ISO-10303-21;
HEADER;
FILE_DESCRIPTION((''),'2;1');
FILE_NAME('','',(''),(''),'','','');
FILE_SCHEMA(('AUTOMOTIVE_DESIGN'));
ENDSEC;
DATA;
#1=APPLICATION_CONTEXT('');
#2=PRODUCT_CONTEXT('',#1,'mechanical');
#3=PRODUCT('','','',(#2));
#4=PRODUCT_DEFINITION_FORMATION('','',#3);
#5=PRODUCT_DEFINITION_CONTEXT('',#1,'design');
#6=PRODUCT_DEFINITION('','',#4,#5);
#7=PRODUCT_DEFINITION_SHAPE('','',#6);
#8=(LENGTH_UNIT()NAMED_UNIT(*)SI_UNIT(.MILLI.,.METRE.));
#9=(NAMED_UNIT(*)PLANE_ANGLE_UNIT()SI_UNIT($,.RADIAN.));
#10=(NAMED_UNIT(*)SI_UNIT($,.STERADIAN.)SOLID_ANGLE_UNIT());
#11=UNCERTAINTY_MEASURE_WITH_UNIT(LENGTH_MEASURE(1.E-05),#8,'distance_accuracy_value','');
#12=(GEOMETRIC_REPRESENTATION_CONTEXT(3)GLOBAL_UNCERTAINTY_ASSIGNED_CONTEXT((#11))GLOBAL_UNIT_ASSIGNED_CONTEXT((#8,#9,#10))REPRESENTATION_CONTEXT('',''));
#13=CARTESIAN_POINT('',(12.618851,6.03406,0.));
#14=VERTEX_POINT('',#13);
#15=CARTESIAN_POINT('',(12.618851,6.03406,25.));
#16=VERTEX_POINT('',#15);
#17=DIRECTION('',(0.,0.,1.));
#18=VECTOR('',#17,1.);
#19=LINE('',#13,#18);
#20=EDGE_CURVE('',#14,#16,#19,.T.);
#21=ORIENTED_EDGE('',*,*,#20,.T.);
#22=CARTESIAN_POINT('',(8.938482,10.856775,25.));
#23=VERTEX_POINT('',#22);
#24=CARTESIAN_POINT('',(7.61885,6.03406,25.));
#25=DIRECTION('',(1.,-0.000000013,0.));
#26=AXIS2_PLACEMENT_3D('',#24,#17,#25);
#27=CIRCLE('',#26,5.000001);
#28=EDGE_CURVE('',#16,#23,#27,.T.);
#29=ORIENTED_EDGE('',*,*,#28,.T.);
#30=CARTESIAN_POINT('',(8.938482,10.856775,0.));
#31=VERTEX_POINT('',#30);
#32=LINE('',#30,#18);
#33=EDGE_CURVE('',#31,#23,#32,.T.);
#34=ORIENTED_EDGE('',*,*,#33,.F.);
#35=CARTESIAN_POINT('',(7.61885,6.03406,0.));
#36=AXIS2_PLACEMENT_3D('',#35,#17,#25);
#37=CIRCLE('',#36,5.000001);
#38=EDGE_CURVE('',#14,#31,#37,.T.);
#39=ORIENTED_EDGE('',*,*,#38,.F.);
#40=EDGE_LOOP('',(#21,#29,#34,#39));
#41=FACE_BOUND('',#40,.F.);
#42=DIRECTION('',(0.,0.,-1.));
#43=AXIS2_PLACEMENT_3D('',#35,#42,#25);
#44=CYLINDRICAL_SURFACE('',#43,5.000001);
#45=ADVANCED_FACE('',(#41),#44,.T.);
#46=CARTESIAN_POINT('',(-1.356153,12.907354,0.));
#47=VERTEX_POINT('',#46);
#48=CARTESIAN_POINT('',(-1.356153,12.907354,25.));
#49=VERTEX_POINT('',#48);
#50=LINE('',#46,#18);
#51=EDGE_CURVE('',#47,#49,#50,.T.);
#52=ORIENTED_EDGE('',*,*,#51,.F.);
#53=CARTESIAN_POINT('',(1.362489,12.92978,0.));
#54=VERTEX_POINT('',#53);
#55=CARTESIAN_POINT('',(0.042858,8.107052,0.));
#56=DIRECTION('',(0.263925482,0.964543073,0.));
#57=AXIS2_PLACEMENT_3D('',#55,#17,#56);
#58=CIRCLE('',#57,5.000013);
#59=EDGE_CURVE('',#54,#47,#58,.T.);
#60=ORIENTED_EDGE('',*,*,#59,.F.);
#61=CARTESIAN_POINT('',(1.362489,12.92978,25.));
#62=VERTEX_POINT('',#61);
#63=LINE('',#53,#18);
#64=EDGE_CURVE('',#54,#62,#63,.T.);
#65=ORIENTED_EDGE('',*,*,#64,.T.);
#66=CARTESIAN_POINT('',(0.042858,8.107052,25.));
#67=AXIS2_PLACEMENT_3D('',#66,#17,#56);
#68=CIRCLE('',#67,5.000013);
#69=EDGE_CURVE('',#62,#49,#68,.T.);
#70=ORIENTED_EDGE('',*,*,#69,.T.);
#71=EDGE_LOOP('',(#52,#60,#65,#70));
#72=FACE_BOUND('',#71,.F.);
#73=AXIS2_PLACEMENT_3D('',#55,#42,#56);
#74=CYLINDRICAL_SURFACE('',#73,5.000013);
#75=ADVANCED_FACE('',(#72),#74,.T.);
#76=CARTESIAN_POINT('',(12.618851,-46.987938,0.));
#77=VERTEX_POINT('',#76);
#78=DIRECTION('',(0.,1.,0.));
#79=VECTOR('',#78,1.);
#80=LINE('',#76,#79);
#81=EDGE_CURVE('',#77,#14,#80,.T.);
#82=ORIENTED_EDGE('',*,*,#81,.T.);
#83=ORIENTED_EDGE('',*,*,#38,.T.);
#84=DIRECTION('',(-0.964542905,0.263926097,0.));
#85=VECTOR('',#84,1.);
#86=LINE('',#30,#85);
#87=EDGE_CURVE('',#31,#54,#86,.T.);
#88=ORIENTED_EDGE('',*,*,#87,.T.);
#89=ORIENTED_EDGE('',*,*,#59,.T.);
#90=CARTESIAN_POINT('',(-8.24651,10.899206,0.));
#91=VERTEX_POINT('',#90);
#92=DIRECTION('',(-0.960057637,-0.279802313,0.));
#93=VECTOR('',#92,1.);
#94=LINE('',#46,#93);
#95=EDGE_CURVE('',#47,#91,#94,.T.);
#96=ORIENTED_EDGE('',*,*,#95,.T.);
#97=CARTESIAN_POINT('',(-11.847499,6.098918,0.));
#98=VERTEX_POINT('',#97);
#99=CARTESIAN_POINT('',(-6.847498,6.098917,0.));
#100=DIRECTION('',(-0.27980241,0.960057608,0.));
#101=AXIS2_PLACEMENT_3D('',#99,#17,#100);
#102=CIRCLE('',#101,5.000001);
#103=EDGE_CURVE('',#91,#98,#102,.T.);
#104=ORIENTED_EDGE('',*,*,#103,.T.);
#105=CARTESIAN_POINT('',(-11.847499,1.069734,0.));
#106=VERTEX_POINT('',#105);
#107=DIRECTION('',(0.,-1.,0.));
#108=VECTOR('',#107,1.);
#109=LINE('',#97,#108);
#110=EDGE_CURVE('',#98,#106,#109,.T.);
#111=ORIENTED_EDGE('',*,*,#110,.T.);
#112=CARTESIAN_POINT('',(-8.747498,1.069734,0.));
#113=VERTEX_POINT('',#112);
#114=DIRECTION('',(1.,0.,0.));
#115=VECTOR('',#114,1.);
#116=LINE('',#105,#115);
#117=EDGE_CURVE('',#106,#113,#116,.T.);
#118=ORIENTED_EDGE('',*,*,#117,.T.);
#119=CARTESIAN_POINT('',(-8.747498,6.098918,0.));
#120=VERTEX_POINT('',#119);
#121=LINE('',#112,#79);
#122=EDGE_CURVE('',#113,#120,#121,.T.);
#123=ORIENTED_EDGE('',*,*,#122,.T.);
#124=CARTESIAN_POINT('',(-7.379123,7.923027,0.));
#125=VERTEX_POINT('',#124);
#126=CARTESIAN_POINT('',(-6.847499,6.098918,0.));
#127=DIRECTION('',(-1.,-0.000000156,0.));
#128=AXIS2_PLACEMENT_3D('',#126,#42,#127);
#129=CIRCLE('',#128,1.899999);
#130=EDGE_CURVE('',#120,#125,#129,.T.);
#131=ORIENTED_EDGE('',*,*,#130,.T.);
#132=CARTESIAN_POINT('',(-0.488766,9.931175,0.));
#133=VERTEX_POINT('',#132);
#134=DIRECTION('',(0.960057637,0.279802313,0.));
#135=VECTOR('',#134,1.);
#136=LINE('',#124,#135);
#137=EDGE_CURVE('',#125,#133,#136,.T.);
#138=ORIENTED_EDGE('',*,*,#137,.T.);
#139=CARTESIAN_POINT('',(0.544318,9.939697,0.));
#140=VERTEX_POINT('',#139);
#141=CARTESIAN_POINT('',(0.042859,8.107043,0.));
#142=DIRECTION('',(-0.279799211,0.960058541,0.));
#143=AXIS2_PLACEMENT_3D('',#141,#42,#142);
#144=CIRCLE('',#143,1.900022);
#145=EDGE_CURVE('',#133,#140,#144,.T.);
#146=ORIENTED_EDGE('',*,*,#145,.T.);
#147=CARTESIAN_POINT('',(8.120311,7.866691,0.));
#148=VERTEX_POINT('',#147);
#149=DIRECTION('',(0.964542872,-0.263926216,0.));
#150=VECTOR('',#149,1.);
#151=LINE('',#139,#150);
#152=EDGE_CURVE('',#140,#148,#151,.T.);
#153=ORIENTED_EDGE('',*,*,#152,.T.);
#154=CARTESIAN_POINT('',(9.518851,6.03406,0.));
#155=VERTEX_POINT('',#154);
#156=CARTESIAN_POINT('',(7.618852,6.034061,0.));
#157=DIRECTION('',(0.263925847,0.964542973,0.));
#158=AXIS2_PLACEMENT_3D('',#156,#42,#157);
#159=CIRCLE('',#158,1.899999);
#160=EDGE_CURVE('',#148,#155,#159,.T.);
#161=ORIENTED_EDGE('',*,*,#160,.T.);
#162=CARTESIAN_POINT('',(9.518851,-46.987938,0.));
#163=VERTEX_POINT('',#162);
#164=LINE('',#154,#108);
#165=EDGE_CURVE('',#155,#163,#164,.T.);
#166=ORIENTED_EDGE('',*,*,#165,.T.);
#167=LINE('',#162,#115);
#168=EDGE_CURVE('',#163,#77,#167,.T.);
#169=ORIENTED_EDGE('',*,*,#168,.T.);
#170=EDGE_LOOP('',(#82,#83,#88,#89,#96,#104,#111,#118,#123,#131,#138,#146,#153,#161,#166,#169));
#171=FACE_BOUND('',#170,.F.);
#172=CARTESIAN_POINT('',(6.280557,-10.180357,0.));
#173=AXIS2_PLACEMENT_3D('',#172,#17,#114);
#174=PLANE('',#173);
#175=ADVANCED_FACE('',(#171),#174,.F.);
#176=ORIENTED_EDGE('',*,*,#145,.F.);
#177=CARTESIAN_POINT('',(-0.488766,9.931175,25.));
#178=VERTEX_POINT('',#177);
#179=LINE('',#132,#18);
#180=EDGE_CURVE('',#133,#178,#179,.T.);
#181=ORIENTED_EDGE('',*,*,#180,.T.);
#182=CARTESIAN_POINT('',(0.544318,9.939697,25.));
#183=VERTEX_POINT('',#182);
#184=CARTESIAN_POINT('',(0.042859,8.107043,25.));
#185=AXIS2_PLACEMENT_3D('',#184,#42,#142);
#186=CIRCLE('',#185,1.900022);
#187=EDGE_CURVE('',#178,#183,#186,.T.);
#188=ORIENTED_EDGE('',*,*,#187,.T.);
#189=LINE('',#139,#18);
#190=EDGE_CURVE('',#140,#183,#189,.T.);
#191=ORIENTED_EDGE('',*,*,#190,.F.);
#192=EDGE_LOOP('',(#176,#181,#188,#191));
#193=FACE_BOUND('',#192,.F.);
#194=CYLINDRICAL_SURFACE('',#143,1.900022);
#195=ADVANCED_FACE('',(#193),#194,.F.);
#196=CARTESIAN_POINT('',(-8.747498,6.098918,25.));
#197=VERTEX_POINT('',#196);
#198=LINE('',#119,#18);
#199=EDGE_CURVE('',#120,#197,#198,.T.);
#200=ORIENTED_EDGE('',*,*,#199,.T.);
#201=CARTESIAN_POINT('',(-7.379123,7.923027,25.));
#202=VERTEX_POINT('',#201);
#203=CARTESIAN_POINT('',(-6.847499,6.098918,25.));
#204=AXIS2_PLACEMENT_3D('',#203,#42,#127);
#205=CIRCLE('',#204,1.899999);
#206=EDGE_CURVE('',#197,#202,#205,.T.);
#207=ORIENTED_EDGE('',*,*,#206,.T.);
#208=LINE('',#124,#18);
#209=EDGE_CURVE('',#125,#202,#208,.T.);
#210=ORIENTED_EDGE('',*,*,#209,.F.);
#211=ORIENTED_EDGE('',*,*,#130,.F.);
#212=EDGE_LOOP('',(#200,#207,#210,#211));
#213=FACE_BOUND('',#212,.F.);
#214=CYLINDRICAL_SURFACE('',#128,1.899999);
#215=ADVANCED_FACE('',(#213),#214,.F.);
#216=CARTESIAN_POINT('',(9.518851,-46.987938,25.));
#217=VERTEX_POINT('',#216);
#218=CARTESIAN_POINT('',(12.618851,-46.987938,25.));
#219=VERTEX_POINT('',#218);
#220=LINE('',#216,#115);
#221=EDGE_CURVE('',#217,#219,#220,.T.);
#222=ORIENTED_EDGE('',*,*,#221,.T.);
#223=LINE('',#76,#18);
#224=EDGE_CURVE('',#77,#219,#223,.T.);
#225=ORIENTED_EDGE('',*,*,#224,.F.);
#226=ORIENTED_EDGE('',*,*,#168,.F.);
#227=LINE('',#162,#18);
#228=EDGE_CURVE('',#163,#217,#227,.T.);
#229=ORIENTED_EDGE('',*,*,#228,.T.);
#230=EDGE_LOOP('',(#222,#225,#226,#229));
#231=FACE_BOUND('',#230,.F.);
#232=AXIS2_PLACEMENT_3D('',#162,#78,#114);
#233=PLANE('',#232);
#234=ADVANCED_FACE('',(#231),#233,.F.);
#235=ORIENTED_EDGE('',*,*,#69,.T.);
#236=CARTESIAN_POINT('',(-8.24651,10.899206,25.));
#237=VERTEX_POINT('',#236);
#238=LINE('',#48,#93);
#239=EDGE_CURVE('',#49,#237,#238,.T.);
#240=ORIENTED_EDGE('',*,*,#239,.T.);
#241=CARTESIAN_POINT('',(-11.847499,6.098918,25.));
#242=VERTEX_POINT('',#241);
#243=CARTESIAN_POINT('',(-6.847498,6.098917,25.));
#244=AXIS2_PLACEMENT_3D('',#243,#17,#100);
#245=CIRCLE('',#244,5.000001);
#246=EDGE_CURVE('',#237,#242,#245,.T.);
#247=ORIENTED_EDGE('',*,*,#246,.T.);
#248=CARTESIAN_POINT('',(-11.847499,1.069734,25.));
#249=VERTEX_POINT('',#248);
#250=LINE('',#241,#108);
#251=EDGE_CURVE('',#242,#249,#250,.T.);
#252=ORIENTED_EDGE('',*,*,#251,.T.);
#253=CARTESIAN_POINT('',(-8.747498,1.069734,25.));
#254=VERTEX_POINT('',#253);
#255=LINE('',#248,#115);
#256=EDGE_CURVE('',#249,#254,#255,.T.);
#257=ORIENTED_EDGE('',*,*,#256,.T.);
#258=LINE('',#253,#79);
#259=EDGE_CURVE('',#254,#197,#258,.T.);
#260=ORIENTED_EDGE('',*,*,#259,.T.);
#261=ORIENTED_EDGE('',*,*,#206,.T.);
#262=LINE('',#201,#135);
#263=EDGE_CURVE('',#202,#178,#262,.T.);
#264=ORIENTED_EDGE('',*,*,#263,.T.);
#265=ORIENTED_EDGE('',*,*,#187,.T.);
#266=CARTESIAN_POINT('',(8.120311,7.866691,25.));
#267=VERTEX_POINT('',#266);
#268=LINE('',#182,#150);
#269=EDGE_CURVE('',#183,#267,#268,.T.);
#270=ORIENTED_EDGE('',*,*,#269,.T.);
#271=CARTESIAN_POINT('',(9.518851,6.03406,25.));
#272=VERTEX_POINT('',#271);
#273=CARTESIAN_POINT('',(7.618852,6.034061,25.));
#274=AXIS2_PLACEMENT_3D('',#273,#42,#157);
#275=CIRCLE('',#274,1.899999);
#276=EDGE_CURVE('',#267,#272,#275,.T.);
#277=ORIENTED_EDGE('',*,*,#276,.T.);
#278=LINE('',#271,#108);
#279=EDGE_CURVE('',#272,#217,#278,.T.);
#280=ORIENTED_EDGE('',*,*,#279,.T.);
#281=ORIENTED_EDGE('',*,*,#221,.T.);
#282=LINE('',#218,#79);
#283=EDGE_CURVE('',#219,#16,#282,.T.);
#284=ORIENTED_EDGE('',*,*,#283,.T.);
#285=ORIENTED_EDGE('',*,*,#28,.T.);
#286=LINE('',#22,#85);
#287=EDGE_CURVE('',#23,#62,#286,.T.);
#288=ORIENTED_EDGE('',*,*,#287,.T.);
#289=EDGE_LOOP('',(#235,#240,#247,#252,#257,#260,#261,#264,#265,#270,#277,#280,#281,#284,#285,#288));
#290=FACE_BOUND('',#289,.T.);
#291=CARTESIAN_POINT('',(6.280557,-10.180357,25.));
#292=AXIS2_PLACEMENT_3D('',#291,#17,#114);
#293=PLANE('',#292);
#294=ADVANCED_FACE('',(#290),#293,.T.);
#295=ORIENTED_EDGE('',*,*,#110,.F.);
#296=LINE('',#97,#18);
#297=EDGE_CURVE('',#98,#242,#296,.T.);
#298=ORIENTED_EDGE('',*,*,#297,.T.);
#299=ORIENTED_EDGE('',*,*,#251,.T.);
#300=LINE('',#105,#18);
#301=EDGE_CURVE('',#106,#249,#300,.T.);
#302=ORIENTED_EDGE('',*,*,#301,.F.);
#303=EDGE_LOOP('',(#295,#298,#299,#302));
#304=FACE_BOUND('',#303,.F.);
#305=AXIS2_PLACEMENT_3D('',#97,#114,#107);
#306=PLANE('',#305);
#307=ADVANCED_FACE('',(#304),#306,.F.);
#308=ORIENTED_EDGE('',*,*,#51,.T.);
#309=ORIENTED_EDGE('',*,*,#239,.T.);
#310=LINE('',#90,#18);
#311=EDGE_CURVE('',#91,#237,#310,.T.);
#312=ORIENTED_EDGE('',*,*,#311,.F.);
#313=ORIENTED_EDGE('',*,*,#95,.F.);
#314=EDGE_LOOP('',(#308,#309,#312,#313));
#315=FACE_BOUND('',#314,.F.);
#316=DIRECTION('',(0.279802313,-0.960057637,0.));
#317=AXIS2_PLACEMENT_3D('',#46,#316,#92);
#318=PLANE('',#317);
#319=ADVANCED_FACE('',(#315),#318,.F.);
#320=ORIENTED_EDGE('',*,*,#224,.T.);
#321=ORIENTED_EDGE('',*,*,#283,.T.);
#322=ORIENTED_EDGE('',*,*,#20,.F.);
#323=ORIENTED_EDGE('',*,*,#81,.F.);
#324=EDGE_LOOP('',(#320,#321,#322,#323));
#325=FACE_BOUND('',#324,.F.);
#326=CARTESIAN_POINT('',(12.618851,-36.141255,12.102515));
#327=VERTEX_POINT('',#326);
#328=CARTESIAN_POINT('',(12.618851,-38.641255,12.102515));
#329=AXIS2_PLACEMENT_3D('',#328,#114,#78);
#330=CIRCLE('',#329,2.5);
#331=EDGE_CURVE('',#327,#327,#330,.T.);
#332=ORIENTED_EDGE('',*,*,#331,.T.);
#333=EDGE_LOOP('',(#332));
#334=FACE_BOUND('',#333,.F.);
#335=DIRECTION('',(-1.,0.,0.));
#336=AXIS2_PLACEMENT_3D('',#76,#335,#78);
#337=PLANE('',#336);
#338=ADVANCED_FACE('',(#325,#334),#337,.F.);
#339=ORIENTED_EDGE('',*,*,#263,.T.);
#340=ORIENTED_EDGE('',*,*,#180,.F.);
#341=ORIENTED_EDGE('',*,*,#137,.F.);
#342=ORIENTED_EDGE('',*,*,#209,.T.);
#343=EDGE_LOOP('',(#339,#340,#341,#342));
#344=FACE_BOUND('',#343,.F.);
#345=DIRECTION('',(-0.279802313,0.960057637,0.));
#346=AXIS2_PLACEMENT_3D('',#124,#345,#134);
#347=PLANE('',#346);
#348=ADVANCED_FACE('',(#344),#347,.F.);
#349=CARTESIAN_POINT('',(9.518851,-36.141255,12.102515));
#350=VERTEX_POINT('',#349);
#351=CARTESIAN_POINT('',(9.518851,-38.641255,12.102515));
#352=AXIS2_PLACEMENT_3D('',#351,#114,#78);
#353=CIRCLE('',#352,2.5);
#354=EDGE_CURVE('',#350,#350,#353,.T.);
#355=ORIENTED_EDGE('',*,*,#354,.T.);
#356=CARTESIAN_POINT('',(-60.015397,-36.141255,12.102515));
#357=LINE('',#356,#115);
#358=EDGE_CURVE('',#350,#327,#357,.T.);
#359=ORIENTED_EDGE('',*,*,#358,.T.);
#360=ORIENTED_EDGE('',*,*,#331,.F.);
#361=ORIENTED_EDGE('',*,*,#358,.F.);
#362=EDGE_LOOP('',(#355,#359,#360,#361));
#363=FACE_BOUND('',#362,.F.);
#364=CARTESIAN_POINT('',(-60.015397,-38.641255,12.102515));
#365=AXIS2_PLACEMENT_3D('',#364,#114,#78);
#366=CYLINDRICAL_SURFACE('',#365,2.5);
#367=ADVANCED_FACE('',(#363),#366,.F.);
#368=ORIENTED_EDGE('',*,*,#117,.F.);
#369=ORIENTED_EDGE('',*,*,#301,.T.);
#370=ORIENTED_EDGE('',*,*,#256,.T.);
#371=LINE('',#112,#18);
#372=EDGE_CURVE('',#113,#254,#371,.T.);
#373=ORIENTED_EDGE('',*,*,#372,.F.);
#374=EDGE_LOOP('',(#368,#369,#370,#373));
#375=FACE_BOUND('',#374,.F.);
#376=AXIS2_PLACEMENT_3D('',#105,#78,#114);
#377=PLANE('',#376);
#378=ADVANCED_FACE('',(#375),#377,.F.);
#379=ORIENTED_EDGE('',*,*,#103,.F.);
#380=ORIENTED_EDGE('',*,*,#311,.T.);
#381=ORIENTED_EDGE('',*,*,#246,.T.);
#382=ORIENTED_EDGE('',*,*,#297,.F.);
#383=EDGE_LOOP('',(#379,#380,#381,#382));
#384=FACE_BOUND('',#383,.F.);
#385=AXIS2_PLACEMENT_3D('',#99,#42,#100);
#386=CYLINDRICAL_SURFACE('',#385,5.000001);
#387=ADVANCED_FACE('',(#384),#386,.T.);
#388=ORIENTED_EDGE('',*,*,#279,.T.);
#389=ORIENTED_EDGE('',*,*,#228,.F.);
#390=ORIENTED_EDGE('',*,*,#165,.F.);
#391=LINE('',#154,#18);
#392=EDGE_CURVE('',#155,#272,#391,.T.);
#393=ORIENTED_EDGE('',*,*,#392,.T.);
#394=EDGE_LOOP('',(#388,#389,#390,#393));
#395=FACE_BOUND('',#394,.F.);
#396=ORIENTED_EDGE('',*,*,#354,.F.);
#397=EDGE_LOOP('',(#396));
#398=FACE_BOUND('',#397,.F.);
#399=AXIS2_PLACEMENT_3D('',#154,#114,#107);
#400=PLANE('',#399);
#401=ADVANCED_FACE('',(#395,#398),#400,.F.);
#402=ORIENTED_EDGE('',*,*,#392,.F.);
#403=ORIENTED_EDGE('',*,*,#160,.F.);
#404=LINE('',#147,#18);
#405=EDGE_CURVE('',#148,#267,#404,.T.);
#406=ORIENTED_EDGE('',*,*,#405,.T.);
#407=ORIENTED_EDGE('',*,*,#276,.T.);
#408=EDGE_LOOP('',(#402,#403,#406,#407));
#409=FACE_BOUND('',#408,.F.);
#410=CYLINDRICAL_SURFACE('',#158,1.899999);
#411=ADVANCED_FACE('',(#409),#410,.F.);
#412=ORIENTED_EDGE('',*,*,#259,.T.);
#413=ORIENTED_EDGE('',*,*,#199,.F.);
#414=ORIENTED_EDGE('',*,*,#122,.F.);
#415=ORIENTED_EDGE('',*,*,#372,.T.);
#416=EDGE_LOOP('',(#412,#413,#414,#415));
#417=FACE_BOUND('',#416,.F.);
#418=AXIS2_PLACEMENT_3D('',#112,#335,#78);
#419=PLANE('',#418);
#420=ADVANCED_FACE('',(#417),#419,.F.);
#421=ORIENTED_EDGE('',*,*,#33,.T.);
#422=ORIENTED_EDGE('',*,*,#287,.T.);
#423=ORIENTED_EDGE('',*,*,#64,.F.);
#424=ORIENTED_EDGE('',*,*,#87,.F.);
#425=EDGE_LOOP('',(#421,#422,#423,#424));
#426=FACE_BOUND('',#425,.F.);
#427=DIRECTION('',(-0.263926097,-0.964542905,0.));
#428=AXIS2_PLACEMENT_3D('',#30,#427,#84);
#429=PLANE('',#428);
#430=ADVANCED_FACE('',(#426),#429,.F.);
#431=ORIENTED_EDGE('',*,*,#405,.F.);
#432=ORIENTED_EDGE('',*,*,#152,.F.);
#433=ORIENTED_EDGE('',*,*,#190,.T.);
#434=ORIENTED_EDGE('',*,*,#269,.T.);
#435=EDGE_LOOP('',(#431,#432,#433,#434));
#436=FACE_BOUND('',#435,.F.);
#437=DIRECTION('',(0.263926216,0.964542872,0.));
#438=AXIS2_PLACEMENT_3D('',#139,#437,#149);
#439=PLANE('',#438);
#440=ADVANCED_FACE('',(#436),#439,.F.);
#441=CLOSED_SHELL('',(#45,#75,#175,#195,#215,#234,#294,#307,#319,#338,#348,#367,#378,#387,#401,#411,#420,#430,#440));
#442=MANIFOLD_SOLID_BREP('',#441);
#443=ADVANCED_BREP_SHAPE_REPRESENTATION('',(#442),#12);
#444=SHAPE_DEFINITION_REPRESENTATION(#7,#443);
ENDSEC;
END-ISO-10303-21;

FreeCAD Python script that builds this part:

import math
import FreeCAD as App
import Part
import Sketcher
from FreeCAD import Vector

doc = App.newDocument("Part")
body = doc.addObject("PartDesign::Body", "Body")

# Sketch on XY plane
sketch1 = body.newObject("Sketcher::SketchObject", "Sketch")
sketch1.AttachmentSupport = (doc.getObject("XY_Plane"), [""])
sketch1.MapMode = "FlatFace"
sketch1.addGeometry([
    Part.LineSegment(Vector(-11.847499, 6.098918, 0), Vector(-11.847499, 1.069734, 0)),  # 0
    Part.LineSegment(Vector(-11.847499, 1.069734, 0), Vector(-8.747498, 1.069734, 0)),  # 1
    Part.LineSegment(Vector(-8.747498, 1.069734, 0), Vector(-8.747498, 6.098918, 0)),  # 2
    Part.ArcOfCircle(Part.Circle(Vector(-6.847499, 6.098918, 0), Vector(0, 0, 1), 1.899999), math.radians(106.248407), math.radians(180.000009)),  # 3
    Part.LineSegment(Vector(-7.379123, 7.923027, 0), Vector(-0.488766, 9.931175, 0)),  # 4
    Part.ArcOfCircle(Part.Circle(Vector(0.042859, 8.107043, 0), Vector(0, 0, 1), 1.900022), math.radians(74.697033), math.radians(106.248221)),  # 5
    Part.LineSegment(Vector(0.544318, 9.939697, 0), Vector(8.120311, 7.866691, 0)),  # 6
    Part.ArcOfCircle(Part.Circle(Vector(7.618852, 6.034061, 0), Vector(0, 0, 1), 1.899999), math.radians(-0.000016), math.radians(74.696864)),  # 7
    Part.LineSegment(Vector(9.518851, 6.03406, 0), Vector(9.518851, -46.987938, 0)),  # 8
    Part.LineSegment(Vector(9.518851, -46.987938, 0), Vector(12.618851, -46.987938, 0)),  # 9
    Part.LineSegment(Vector(12.618851, -46.987938, 0), Vector(12.618851, 6.03406, 0)),  # 10
    Part.ArcOfCircle(Part.Circle(Vector(7.61885, 6.03406, 0), Vector(0, 0, 1), 5.000001), math.radians(-0.000001), math.radians(74.696836)),  # 11
    Part.LineSegment(Vector(8.938482, 10.856775, 0), Vector(1.362489, 12.92978, 0)),  # 12
    Part.ArcOfCircle(Part.Circle(Vector(0.042858, 8.107052, 0), Vector(0, 0, 1), 5.000013), math.radians(74.696885), math.radians(106.248356)),  # 13
    Part.LineSegment(Vector(-1.356153, 12.907354, 0), Vector(-8.24651, 10.899206, 0)),  # 14
    Part.ArcOfCircle(Part.Circle(Vector(-6.847498, 6.098917, 0), Vector(0, 0, 1), 5.000001), math.radians(106.248412), math.radians(179.999983)),  # 15
], False)
sketch1.addConstraint([
    Sketcher.Constraint("Coincident", 0, 2, 1, 1),
    Sketcher.Constraint("Coincident", 1, 2, 2, 1),
    Sketcher.Constraint("Coincident", 2, 2, 3, 2),
    Sketcher.Constraint("Coincident", 3, 1, 4, 1),
    Sketcher.Constraint("Coincident", 4, 2, 5, 2),
    Sketcher.Constraint("Coincident", 5, 1, 6, 1),
    Sketcher.Constraint("Coincident", 6, 2, 7, 2),
    Sketcher.Constraint("Coincident", 7, 1, 8, 1),
    Sketcher.Constraint("Coincident", 8, 2, 9, 1),
    Sketcher.Constraint("Coincident", 9, 2, 10, 1),
    Sketcher.Constraint("Coincident", 10, 2, 11, 1),
    Sketcher.Constraint("Coincident", 11, 2, 12, 1),
    Sketcher.Constraint("Coincident", 12, 2, 13, 1),
    Sketcher.Constraint("Coincident", 13, 2, 14, 1),
    Sketcher.Constraint("Coincident", 14, 2, 15, 1),
    Sketcher.Constraint("Coincident", 15, 2, 0, 1),
    Sketcher.Constraint("Vertical", 0),
    Sketcher.Constraint("Horizontal", 1),
    Sketcher.Constraint("Vertical", 2),
    Sketcher.Constraint("Vertical", 8),
    Sketcher.Constraint("Horizontal", 9),
    Sketcher.Constraint("Vertical", 10),
    Sketcher.Constraint("Coincident", 11, 3, 7, 3),
    Sketcher.Constraint("Coincident", 13, 3, 5, 3),
    Sketcher.Constraint("Coincident", 15, 3, 3, 3),
    Sketcher.Constraint("Radius", 11, 5.000001),
    Sketcher.Constraint("Radius", 15, 5.000001),
    Sketcher.Constraint("Radius", 3, 1.899999),
    Sketcher.Constraint("Radius", 7, 1.899999),
    Sketcher.Constraint("Radius", 5, 1.900022),
    Sketcher.Constraint("Radius", 13, 5.000013),
    Sketcher.Constraint("DistanceY", 8, 2, 11, 3, 53.021998),
    Sketcher.Constraint("DistanceX", 3, 3, -1, 1, 6.847499),
    Sketcher.Constraint("Distance", 6, 7.854491),
    Sketcher.Constraint("Distance", 12, 7.85449),
    Sketcher.Constraint("DistanceY", 0, 2, 0, 1, 5.029184),
    Sketcher.Constraint("DistanceY", 2, 1, 2, 2, 5.029184),
    Sketcher.Constraint("DistanceY", 8, 2, 8, 1, 53.021998),
    Sketcher.Constraint("DistanceY", 10, 1, 10, 2, 53.021998),
    Sketcher.Constraint("DistanceY", -1, 1, 3, 3, 6.098918),
    Sketcher.Constraint("DistanceX", -1, 1, 5, 3, 0.042859),
    Sketcher.Constraint("DistanceY", -1, 1, 7, 3, 6.034061),
    Sketcher.Constraint("DistanceX", -1, 1, 11, 3, 7.61885),
    Sketcher.Constraint("DistanceY", -1, 1, 13, 3, 8.107052),
    Sketcher.Constraint("DistanceY", -1, 1, 2, 2, 6.098918),
    Sketcher.Constraint("DistanceX", -1, 1, 6, 2, 8.120311),
    Sketcher.Constraint("DistanceX", -1, 1, 11, 2, 8.938482),
    Sketcher.Constraint("DistanceX", 14, 2, -1, 1, 8.24651),
    Sketcher.Constraint("DistanceY", 3, 3, 3, 1, 1.824109),
    Sketcher.Constraint("DistanceX", 15, 3, 4, 2, 6.358732),
    Sketcher.Constraint("DistanceX", 13, 2, 12, 2, 2.718642),
])
pad1 = body.newObject("PartDesign::Pad", "Pad")
pad1.Profile = sketch1
pad1.Length = 25

# Sketch on YZ plane
sketch2 = body.newObject("Sketcher::SketchObject", "Sketch001")
sketch2.AttachmentSupport = (doc.getObject("YZ_Plane"), [""])
sketch2.MapMode = "FlatFace"
sketch2.AttachmentOffset = App.Placement(Vector(0, 0, 9.518851), App.Rotation())
sketch2.addGeometry(Part.Circle(Vector(-38.6, 12.1, 0), Vector(0, 0, 1), 2.5), False)
sketch2.addConstraint([
    Sketcher.Constraint("Diameter", 0, 5.0),
    Sketcher.Constraint("DistanceX", 0, 3, -1, 1, 38.641255),
    Sketcher.Constraint("DistanceY", -1, 1, 0, 3, 12.102515),
])
doc.recompute()
hole = body.newObject("PartDesign::Hole", "Hole")
hole.Profile = sketch2
hole.ThreadType = "None"
hole.Diameter = 5
hole.DepthType = "ThroughAll"
hole.Reversed = True

doc.recompute()
